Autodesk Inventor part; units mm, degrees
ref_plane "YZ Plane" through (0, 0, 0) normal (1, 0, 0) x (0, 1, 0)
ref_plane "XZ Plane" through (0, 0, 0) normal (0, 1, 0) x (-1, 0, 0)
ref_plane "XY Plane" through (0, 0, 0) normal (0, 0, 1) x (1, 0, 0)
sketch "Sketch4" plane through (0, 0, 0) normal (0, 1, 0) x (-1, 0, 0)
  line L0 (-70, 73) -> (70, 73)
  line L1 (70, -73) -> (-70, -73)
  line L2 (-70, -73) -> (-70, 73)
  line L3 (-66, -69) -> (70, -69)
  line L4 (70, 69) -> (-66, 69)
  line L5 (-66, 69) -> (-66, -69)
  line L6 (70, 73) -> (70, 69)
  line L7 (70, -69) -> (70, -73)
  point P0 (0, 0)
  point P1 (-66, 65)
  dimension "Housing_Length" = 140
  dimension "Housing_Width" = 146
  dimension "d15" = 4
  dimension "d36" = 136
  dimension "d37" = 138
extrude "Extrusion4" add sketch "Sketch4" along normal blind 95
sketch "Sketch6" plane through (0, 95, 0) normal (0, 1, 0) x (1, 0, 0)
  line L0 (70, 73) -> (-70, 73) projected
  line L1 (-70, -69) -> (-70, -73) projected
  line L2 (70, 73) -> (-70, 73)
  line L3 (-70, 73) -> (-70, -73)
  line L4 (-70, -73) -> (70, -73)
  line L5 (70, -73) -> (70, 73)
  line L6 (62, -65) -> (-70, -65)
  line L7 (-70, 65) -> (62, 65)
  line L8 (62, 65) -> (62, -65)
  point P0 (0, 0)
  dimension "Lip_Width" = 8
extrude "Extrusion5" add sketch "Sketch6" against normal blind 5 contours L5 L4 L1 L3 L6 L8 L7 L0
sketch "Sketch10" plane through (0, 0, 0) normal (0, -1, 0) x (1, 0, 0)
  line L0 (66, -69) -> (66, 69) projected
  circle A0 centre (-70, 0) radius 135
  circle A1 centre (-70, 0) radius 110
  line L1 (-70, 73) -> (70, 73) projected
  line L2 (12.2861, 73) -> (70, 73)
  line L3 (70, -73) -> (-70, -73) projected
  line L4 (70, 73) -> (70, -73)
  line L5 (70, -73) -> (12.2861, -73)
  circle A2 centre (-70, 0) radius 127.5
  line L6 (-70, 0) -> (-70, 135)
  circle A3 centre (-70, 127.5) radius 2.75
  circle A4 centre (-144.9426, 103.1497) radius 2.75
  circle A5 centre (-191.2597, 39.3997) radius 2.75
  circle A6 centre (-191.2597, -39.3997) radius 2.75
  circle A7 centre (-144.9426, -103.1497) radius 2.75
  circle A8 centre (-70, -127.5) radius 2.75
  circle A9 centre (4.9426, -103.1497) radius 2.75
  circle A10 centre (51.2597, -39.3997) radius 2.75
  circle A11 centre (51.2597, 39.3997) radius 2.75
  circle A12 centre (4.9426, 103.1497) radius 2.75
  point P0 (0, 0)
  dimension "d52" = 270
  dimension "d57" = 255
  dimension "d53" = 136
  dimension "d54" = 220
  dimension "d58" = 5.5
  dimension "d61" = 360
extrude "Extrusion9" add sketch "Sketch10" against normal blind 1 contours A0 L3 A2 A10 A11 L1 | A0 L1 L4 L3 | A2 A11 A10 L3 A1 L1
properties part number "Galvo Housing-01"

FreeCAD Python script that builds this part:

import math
import FreeCAD as App
import Part
import Sketcher

V = App.Vector


def add_polygon(sketch, points):
    """Adds a closed chain of lines whose ends are joined by coincident constraints."""
    first, n = sketch.GeometryCount, len(points)
    for a, b in zip(points, points[1:] + points[:1]):
        sketch.addGeometry(Part.LineSegment(App.Vector(*a, 0), App.Vector(*b, 0)), False)
    for i in range(n):
        sketch.addConstraint(Sketcher.Constraint("Coincident", first + i, 2, first + (i + 1) % n, 1))

doc = App.newDocument("Part")
body = doc.addObject("PartDesign::Body", "Body")

# Sketch on XZ plane
sketch1 = body.newObject("Sketcher::SketchObject", "Sketch")
sketch1.AttachmentSupport = (doc.getObject("XZ_Plane"), [""])
sketch1.MapMode = "FlatFace"
add_polygon(sketch1, [(-70, 73), (70, 73), (70, -73), (-70, -73), (-70, -69), (66, -69), (66, 69), (-70, 69)])  # lines 0-7
sketch1.addConstraint(Sketcher.Constraint("Horizontal", 0))
sketch1.addConstraint(Sketcher.Constraint("Vertical", 1))
sketch1.addConstraint(Sketcher.Constraint("Horizontal", 2))
sketch1.addConstraint(Sketcher.Constraint("Vertical", 3))
sketch1.addConstraint(Sketcher.Constraint("Horizontal", 4))
sketch1.addConstraint(Sketcher.Constraint("Vertical", 5))
sketch1.addConstraint(Sketcher.Constraint("Horizontal", 6))
sketch1.addConstraint(Sketcher.Constraint("Vertical", 7))
sketch1.addConstraint(Sketcher.Constraint("Symmetric", 0, 2, 2, 2, -1, 1))
sketch1.addConstraint(Sketcher.Constraint("Symmetric", 3, 2, 6, 2, -1))
sketch1.addConstraint(Sketcher.Constraint("DistanceX", 0, 1, 0, 2, 140.0))
sketch1.addConstraint(Sketcher.Constraint("DistanceX", 4, 1, 4, 2, 136.0))
sketch1.addConstraint(Sketcher.Constraint("DistanceY", 1, 2, 1, 1, 146.0))
sketch1.addConstraint(Sketcher.Constraint("DistanceY", 3, 1, 3, 2, 4.0))
pad1 = body.newObject("PartDesign::Pad", "Pad")
pad1.Profile = sketch1
pad1.Length = 95
pad1.Reversed = True

# Sketch on XZ plane
sketch2 = body.newObject("Sketcher::SketchObject", "Sketch001")
sketch2.AttachmentSupport = (doc.getObject("XZ_Plane"), [""])
sketch2.MapMode = "FlatFace"
sketch2.AttachmentOffset = App.Placement(V(0, 0, -95), App.Rotation())
add_polygon(sketch2, [(70, 73), (70, -73), (-70, -73), (-70, -65), (62, -65), (62, 65), (-70, 65), (-70, 73)])  # lines 0-7
sketch2.addConstraint(Sketcher.Constraint("Vertical", 0))
sketch2.addConstraint(Sketcher.Constraint("Horizontal", 1))
sketch2.addConstraint(Sketcher.Constraint("Vertical", 2))
sketch2.addConstraint(Sketcher.Constraint("Horizontal", 3))
sketch2.addConstraint(Sketcher.Constraint("Vertical", 4))
sketch2.addConstraint(Sketcher.Constraint("Horizontal", 5))
sketch2.addConstraint(Sketcher.Constraint("Vertical", 6))
sketch2.addConstraint(Sketcher.Constraint("Horizontal", 7))
sketch2.addConstraint(Sketcher.Constraint("Symmetric", 0, 2, 6, 2, -1, 1))
sketch2.addConstraint(Sketcher.Constraint("Symmetric", 2, 2, 5, 2, -1))
sketch2.addConstraint(Sketcher.Constraint("DistanceY", 2, 1, 2, 2, 8.0))
sketch2.addConstraint(Sketcher.Constraint("DistanceX", 3, 2, 0, 2, 8.0))
sketch2.addConstraint(Sketcher.Constraint("DistanceX", 1, 2, 1, 1, 140.0))
sketch2.addConstraint(Sketcher.Constraint("DistanceY", 0, 2, 0, 1, 146.0))
pad2 = body.newObject("PartDesign::Pad", "Pad001")
pad2.Profile = sketch2
pad2.Length = 5

# Sketch on XZ plane
sketch3 = body.newObject("Sketcher::SketchObject", "Sketch002")
sketch3.AttachmentSupport = (doc.getObject("XZ_Plane"), [""])
sketch3.MapMode = "FlatFace"
sketch3.addGeometry(Part.LineSegment(V(70, -73, 0), V(70, 73, 0)), False)
sketch3.addGeometry(Part.LineSegment(V(70, 73, 0), V(12.3, 73, 0)), False)
sketch3.addGeometry(Part.ArcOfCircle(Part.Circle(V(-70, 0, 0), V(0, 0, 1), 110), math.radians(-42), math.radians(42)), False)
sketch3.addGeometry(Part.LineSegment(V(12.3, -73, 0), V(70, -73, 0)), False)
sketch3.addGeometry(Part.Circle(V(51.3, -39.4, 0), V(0, 0, 1), 2.8), False)
sketch3.addGeometry(Part.Circle(V(51.3, 39.4, 0), V(0, 0, 1), 2.8), False)
sketch3.addConstraint(Sketcher.Constraint("Coincident", 0, 2, 1, 1))
sketch3.addConstraint(Sketcher.Constraint("Coincident", 1, 2, 2, 2))
sketch3.addConstraint(Sketcher.Constraint("Coincident", 2, 1, 3, 1))
sketch3.addConstraint(Sketcher.Constraint("Coincident", 3, 2, 0, 1))
sketch3.addConstraint(Sketcher.Constraint("Vertical", 0))
sketch3.addConstraint(Sketcher.Constraint("Horizontal", 1))
sketch3.addConstraint(Sketcher.Constraint("Horizontal", 3))
sketch3.addConstraint(Sketcher.Constraint("Equal", 4, 5))
sketch3.addConstraint(Sketcher.Constraint("Symmetric", 4, 3, 5, 3, -1))
sketch3.addConstraint(Sketcher.Constraint("Symmetric", 1, 2, 2, 1, -1))
sketch3.addConstraint(Sketcher.Constraint("Radius", 2, 110.0))
sketch3.addConstraint(Sketcher.Constraint("Diameter", 4, 5.5))
sketch3.addConstraint(Sketcher.Constraint("DistanceY", 0, 1, 0, 2, 146.0))
sketch3.addConstraint(Sketcher.Constraint("DistanceX", 2, 3, -1, 1, 70.0))
sketch3.addConstraint(Sketcher.Constraint("DistanceX", -1, 1, 0, 2, 70.0))
sketch3.addConstraint(Sketcher.Constraint("DistanceX", -1, 1, 4, 3, 51.2597))
sketch3.addConstraint(Sketcher.Constraint("DistanceY", 4, 3, -1, 1, 39.3997))
pad3 = body.newObject("PartDesign::Pad", "Pad002")
pad3.Profile = sketch3
pad3.Length = 1
pad3.Reversed = True

doc.recompute()
